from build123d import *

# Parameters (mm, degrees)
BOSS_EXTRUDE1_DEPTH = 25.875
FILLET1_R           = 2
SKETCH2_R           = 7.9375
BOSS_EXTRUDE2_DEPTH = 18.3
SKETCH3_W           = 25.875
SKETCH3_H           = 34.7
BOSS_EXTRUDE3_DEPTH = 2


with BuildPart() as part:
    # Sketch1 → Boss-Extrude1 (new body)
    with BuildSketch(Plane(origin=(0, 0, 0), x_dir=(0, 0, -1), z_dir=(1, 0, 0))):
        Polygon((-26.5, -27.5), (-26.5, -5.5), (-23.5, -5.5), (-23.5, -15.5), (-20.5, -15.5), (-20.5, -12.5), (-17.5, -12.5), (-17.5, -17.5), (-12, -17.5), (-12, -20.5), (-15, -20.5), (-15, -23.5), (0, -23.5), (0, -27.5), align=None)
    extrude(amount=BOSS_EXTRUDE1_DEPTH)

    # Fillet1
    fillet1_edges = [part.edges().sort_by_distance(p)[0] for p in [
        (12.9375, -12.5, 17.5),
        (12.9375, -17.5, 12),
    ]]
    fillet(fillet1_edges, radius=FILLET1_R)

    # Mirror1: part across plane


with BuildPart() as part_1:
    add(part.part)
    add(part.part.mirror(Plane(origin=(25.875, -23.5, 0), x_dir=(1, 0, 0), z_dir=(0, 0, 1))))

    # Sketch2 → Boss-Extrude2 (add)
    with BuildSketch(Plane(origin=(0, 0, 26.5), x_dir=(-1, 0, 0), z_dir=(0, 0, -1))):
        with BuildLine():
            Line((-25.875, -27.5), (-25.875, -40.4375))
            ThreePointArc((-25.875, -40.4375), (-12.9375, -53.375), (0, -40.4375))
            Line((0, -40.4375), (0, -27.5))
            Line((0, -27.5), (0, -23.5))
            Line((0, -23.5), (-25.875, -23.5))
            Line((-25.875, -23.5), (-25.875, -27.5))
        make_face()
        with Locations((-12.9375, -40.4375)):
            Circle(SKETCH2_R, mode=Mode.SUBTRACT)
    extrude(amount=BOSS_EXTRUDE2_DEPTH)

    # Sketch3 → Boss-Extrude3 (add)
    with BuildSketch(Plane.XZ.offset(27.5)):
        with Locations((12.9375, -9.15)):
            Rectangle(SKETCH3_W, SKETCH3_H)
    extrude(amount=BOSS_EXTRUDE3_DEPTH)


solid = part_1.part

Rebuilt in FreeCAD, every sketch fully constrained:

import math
import FreeCAD as App
import Part
import Sketcher

V = App.Vector
Q = App.Units.Quantity


def edges_at(feature, points):
    """Names of the edges that pass closest to the given points."""
    edges = feature.Shape.Edges
    near = lambda p: min(range(len(edges)), key=lambda i: edges[i].distToShape(Part.Vertex(*p))[0])
    return sorted({f"Edge{near(p) + 1}" for p in points})


def add_polygon(sketch, points):
    """Adds a closed chain of lines whose ends are joined by coincident constraints."""
    first, n = sketch.GeometryCount, len(points)
    for a, b in zip(points, points[1:] + points[:1]):
        sketch.addGeometry(Part.LineSegment(App.Vector(*a, 0), App.Vector(*b, 0)), False)
    for i in range(n):
        sketch.addConstraint(Sketcher.Constraint("Coincident", first + i, 2, first + (i + 1) % n, 1))

doc = App.newDocument("Part")
body = doc.addObject("PartDesign::Body", "Body")

# Sketch on YZ plane
sketch1 = doc.addObject("Sketcher::SketchObject", "Sketch")
body.addObject(sketch1)
sketch1.AttachmentSupport = (doc.YZ_Plane, [""])
sketch1.MapMode = "FlatFace"
add_polygon(sketch1, [(-5.5, 26.5), (-27.5, 26.5), (-27.5, 0), (-23.5, 0), (-23.5, 15), (-20.5, 15), (-20.5, 12), (-17.5, 12), (-17.5, 17.5), (-12.5, 17.5), (-12.5, 20.5), (-15.5, 20.5), (-15.5, 23.5), (-5.5, 23.5)])  # lines 0-13
sketch1.addConstraint(Sketcher.Constraint("Horizontal", 0))
sketch1.addConstraint(Sketcher.Constraint("Vertical", 1))
sketch1.addConstraint(Sketcher.Constraint("Horizontal", 2))
sketch1.addConstraint(Sketcher.Constraint("Vertical", 3))
sketch1.addConstraint(Sketcher.Constraint("Horizontal", 4))
sketch1.addConstraint(Sketcher.Constraint("Vertical", 5))
sketch1.addConstraint(Sketcher.Constraint("Horizontal", 6))
sketch1.addConstraint(Sketcher.Constraint("Vertical", 7))
sketch1.addConstraint(Sketcher.Constraint("Horizontal", 8))
sketch1.addConstraint(Sketcher.Constraint("Vertical", 9))
sketch1.addConstraint(Sketcher.Constraint("Horizontal", 10))
sketch1.addConstraint(Sketcher.Constraint("Vertical", 11))
sketch1.addConstraint(Sketcher.Constraint("Horizontal", 12))
sketch1.addConstraint(Sketcher.Constraint("Vertical", 13))
sketch1.addConstraint(Sketcher.Constraint("PointOnObject", 1, 2, -1))
sketch1.addConstraint(Sketcher.Constraint("Equal", 4, 6))
sketch1.addConstraint(Sketcher.Constraint("Equal", 6, 10))
sketch1.addConstraint(Sketcher.Constraint("Equal", 10, 5))
sketch1.addConstraint(Sketcher.Constraint("Equal", 5, 9))
sketch1.addConstraint(Sketcher.Constraint("Equal", 9, 11))
sketch1.addConstraint(Sketcher.Constraint("Equal", 11, 13))
sketch1.addConstraint(Sketcher.Constraint("DistanceX", 0, 2, 0, 1, Q("22 mm")))
sketch1.addConstraint(Sketcher.Constraint("DistanceX", 2, 1, 2, 2, Q("4 mm")))
sketch1.addConstraint(Sketcher.Constraint("DistanceX", 4, 1, 4, 2, Q("3 mm")))
sketch1.addConstraint(Sketcher.Constraint("DistanceX", 8, 1, 8, 2, Q("5 mm")))
sketch1.addConstraint(Sketcher.Constraint("DistanceY", 3, 1, 3, 2, Q("15 mm")))
sketch1.addConstraint(Sketcher.Constraint("DistanceY", 1, 2, 1, 1, Q("26.5 mm")))
sketch1.addConstraint(Sketcher.Constraint("DistanceX", 0, 2, -1, 1, Q("27.5 mm")))
pad1 = doc.addObject("PartDesign::Pad", "Pad")
body.addObject(pad1)
pad1.Profile = sketch1
pad1.Length = 25.875
doc.recompute()

fillet = doc.addObject("PartDesign::Fillet", "Fillet")
body.addObject(fillet)
fillet.Base = (pad1, edges_at(pad1, [(12.938, -12.5, 17.5), (12.938, -17.5, 12)]))
fillet.Radius = 2
body2 = doc.addObject("PartDesign::Body", "Body001")
doc.recompute()

body2.BaseFeature = body
doc.recompute()

mirroring = doc.addObject("Part::Mirroring", "Mirroring")
mirroring.Source = body
mirroring.Base = V(25.875, -23.5, 0)
mirroring.Normal = V(0, 0, 1)
body3 = doc.addObject("PartDesign::Body", "Body002")
body3.BaseFeature = mirroring
boolean = doc.addObject("PartDesign::Boolean", "Boolean")
body2.addObject(boolean)
boolean.Type = "Fuse"
boolean.addObjects([body3])
doc.recompute()

# Sketch on XY plane
sketch2 = doc.addObject("Sketcher::SketchObject", "Sketch001")
body2.addObject(sketch2)
sketch2.AttachmentSupport = (doc.getObject("XY_Plane001"), [""])
sketch2.MapMode = "FlatFace"
sketch2.AttachmentOffset = App.Placement(V(0, 0, 26.5), App.Rotation())
sketch2.addGeometry(Part.ArcOfCircle(Part.Circle(V(12.9375, -40.4375, 0), V(0, 0, 1), 12.9375), math.radians(180), math.radians(360)), False)
sketch2.addGeometry(Part.LineSegment(V(0, -40.4375, 0), V(0, -23.5, 0)), False)
sketch2.addGeometry(Part.LineSegment(V(0, -23.5, 0), V(25.875, -23.5, 0)), False)
sketch2.addGeometry(Part.LineSegment(V(25.875, -23.5, 0), V(25.875, -40.4375, 0)), False)
sketch2.addGeometry(Part.Circle(V(12.9375, -40.4375, 0), V(0, 0, 1), 7.9375), False)
sketch2.addConstraint(Sketcher.Constraint("Tangent", 0, 1, 1, 1))
sketch2.addConstraint(Sketcher.Constraint("Coincident", 1, 2, 2, 1))
sketch2.addConstraint(Sketcher.Constraint("Coincident", 2, 2, 3, 1))
sketch2.addConstraint(Sketcher.Constraint("Tangent", 3, 2, 0, 2))
sketch2.addConstraint(Sketcher.Constraint("Vertical", 1))
sketch2.addConstraint(Sketcher.Constraint("Horizontal", 2))
sketch2.addConstraint(Sketcher.Constraint("Vertical", 3))
sketch2.addConstraint(Sketcher.Constraint("Coincident", 4, 3, 0, 3))
sketch2.addConstraint(Sketcher.Constraint("PointOnObject", 0, 1, -2))
sketch2.addConstraint(Sketcher.Constraint("Diameter", 4, Q("15.875 mm")))
sketch2.addConstraint(Sketcher.Constraint("DistanceY", 1, 2, -1, 1, Q("23.5 mm")))
sketch2.addConstraint(Sketcher.Constraint("Radius", 0, Q("12.9375 mm")))
sketch2.addConstraint(Sketcher.Constraint("DistanceY", 1, 1, 1, 2, Q("16.9375 mm")))
pad2 = doc.addObject("PartDesign::Pad", "Pad001")
body2.addObject(pad2)
pad2.Profile = sketch2
pad2.Length = 18.3
pad2.Reversed = True

# Sketch on XZ plane
sketch3 = doc.addObject("Sketcher::SketchObject", "Sketch002")
body2.addObject(sketch3)
sketch3.AttachmentSupport = (doc.getObject("XZ_Plane001"), [""])
sketch3.MapMode = "FlatFace"
sketch3.AttachmentOffset = App.Placement(V(0, 0, 27.5), App.Rotation())
add_polygon(sketch3, [(0, 8.2), (0, -26.5), (25.875, -26.5), (25.875, 8.2)])  # lines 0-3
sketch3.addConstraint(Sketcher.Constraint("Vertical", 0))
sketch3.addConstraint(Sketcher.Constraint("Horizontal", 1))
sketch3.addConstraint(Sketcher.Constraint("Vertical", 2))
sketch3.addConstraint(Sketcher.Constraint("Horizontal", 3))
sketch3.addConstraint(Sketcher.Constraint("PointOnObject", 0, 2, -2))
sketch3.addConstraint(Sketcher.Constraint("DistanceY", 0, 2, 0, 1, Q("34.7 mm")))
sketch3.addConstraint(Sketcher.Constraint("DistanceY", 0, 2, -1, 1, Q("26.5 mm")))
sketch3.addConstraint(Sketcher.Constraint("DistanceX", 1, 1, 1, 2, Q("25.875 mm")))
pad3 = doc.addObject("PartDesign::Pad", "Pad002")
body2.addObject(pad3)
pad3.Profile = sketch3
pad3.Length = 2
mirroring.Visibility = False

doc.recompute()
